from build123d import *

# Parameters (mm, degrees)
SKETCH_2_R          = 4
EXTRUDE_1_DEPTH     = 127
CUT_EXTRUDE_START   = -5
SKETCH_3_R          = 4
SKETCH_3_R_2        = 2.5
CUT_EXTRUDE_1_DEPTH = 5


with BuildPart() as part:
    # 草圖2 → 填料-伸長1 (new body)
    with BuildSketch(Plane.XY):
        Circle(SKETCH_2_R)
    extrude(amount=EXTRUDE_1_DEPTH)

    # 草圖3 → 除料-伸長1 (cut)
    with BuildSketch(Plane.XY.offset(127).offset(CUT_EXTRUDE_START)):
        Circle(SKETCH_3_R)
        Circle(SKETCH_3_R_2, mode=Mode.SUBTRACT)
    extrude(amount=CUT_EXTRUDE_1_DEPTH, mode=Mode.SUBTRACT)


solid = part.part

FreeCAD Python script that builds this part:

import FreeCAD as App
import Part
import Sketcher
Q = App.Units.Quantity

doc = App.newDocument("Part")
params = doc.addObject("Spreadsheet::Sheet", "Params")
for row, (alias, value) in enumerate([
    ("sketch1_diameter", "8 mm"),
    ("pad1_length", "127 mm"),
    ("sketch2_diameter", "8 mm"),
    ("sketch2_diameter2", "5 mm"),
    ("pocket1_length", "5 mm"),
], start=1):
    params.set(f"A{row}", alias)
    params.set(f"B{row}", "=" + value)
    params.setAlias(f"B{row}", alias)

body = doc.addObject("PartDesign::Body", "Body")

# Sketch on XY plane
sketch1 = doc.addObject("Sketcher::SketchObject", "Sketch")
body.addObject(sketch1)
sketch1.AttachmentSupport = (doc.XY_Plane, [""])
sketch1.MapMode = "FlatFace"
sketch1.addGeometry(Part.Circle(App.Vector(0, 0, 0), App.Vector(0, 0, 1), 4), False)
sketch1.addConstraint([
    Sketcher.Constraint("Coincident", 0, 3, -1, 1),
    Sketcher.Constraint("Diameter", 0, Q("8 mm")),
])
sketch1.setExpression("Constraints[1]", "Params.sketch1_diameter")
pad1 = doc.addObject("PartDesign::Pad", "Pad")
body.addObject(pad1)
pad1.Profile = sketch1
pad1.setExpression("Length", "Params.pad1_length")

# Sketch on XY plane
sketch2 = doc.addObject("Sketcher::SketchObject", "Sketch001")
body.addObject(sketch2)
sketch2.AttachmentSupport = (doc.XY_Plane, [""])
sketch2.MapMode = "FlatFace"
sketch2.AttachmentOffset = App.Placement(App.Vector(0, 0, 122), App.Rotation())
sketch2.addGeometry([
    Part.Circle(App.Vector(0, 0, 0), App.Vector(0, 0, 1), 4),
    Part.Circle(App.Vector(0, 0, 0), App.Vector(0, 0, 1), 2.5),
], False)
sketch2.addConstraint([
    Sketcher.Constraint("Coincident", 0, 3, -1, 1),
    Sketcher.Constraint("Coincident", 1, 3, -1, 1),
    Sketcher.Constraint("Diameter", 0, Q("8 mm")),
    Sketcher.Constraint("Diameter", 1, Q("5 mm")),
])
sketch2.setExpression("Constraints[2]", "Params.sketch2_diameter")
sketch2.setExpression("Constraints[3]", "Params.sketch2_diameter2")
pocket1 = doc.addObject("PartDesign::Pocket", "Pocket")
body.addObject(pocket1)
pocket1.Profile = sketch2
pocket1.setExpression("Length", "Params.pocket1_length")
pocket1.Reversed = True

doc.recompute()
